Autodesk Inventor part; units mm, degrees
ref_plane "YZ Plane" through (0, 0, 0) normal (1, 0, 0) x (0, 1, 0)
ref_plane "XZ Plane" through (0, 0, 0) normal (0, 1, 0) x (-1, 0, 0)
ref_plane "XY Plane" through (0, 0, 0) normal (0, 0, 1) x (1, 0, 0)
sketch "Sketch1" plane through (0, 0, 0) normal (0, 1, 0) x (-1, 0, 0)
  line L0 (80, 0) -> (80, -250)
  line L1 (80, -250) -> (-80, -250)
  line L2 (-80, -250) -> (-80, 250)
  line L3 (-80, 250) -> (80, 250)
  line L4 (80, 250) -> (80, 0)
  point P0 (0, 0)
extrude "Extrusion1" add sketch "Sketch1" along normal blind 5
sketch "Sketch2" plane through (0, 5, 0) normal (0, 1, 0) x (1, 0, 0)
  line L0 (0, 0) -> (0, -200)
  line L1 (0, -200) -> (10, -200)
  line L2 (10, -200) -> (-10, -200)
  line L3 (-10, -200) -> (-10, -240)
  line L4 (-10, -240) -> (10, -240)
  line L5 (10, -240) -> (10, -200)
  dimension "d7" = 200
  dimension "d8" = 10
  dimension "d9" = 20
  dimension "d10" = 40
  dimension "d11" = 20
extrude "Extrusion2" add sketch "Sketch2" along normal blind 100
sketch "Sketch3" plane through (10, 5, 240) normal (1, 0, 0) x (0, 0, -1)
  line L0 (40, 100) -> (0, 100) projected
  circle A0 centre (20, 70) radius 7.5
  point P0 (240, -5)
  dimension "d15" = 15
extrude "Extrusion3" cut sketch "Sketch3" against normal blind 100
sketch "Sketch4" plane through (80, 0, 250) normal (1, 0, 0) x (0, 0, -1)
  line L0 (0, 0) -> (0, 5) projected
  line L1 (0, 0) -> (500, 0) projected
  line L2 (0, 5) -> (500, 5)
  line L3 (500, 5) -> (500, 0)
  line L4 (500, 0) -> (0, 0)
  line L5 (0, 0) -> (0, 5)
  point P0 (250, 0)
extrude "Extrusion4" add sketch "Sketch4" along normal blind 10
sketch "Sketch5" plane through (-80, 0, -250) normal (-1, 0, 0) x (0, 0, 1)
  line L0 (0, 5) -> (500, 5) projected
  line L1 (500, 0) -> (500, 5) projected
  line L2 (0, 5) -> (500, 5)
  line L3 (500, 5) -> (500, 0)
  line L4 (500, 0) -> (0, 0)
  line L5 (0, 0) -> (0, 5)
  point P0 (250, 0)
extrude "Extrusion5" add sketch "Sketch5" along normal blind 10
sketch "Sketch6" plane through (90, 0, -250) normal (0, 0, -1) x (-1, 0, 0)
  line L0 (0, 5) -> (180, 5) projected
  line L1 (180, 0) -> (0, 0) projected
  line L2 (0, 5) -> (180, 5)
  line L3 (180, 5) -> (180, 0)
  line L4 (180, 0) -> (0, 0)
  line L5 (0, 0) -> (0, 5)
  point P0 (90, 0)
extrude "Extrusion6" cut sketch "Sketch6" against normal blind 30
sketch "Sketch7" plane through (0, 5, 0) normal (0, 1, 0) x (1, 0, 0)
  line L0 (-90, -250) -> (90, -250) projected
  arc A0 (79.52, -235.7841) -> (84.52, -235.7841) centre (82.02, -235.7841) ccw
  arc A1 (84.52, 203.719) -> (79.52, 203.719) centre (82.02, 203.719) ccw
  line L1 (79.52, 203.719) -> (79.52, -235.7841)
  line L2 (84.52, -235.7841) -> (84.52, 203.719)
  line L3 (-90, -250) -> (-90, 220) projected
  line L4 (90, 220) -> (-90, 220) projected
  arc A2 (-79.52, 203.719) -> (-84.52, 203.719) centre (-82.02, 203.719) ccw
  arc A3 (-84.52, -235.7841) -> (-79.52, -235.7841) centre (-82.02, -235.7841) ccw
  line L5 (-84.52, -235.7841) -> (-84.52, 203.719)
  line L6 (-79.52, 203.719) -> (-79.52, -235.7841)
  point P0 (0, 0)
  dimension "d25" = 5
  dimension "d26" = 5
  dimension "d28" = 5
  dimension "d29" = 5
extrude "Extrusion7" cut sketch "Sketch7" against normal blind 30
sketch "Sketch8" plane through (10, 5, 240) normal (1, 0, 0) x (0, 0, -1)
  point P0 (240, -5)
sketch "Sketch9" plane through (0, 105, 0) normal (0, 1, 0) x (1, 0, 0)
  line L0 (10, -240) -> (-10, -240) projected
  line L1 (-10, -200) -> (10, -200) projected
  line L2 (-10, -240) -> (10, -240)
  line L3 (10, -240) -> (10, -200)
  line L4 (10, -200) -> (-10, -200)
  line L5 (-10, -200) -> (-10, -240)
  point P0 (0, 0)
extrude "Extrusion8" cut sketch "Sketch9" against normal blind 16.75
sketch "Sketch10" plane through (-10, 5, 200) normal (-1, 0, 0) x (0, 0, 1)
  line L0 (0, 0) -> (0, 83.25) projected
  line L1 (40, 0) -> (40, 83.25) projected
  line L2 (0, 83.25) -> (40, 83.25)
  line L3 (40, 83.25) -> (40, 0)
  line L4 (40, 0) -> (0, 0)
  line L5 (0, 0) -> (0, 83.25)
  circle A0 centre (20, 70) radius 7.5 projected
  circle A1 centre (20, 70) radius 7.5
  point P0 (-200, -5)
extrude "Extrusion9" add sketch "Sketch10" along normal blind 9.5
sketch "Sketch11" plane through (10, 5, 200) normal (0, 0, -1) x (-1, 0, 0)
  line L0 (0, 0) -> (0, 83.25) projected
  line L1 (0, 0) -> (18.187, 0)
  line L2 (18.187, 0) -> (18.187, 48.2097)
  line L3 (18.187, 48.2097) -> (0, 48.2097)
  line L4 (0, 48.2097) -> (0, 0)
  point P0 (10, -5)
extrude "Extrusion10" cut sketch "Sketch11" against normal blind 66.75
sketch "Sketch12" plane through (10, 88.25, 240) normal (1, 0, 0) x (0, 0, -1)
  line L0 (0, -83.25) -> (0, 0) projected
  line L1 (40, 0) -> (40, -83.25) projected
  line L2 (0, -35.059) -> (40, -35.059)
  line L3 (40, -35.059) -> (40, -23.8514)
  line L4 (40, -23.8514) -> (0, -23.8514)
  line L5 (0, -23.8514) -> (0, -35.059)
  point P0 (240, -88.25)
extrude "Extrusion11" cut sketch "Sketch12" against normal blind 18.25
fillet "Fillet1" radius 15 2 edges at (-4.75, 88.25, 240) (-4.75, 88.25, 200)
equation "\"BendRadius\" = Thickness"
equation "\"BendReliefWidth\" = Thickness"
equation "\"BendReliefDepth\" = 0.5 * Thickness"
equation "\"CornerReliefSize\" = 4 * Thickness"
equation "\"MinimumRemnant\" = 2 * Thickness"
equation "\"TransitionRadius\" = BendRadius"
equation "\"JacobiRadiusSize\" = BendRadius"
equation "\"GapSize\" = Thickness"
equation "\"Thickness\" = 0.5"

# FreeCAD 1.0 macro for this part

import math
import FreeCAD as App
import Part
import Sketcher
from FreeCAD import Vector
Q = App.Units.Quantity


def edges_at(feature, points):
    """Names of the edges that pass closest to the given points."""
    edges = feature.Shape.Edges
    near = lambda p: min(range(len(edges)), key=lambda i: edges[i].distToShape(Part.Vertex(*p))[0])
    return sorted({f"Edge{near(p) + 1}" for p in points})


def add_polygon(sketch, points):
    """Adds a closed chain of lines whose ends are joined by coincident constraints."""
    first, n = sketch.GeometryCount, len(points)
    for a, b in zip(points, points[1:] + points[:1]):
        sketch.addGeometry(Part.LineSegment(App.Vector(*a, 0), App.Vector(*b, 0)), False)
    for i in range(n):
        sketch.addConstraint(Sketcher.Constraint("Coincident", first + i, 2, first + (i + 1) % n, 1))

doc = App.newDocument("Part")
body = doc.addObject("PartDesign::Body", "Body")

# Sketch on XZ plane
sketch1 = doc.addObject("Sketcher::SketchObject", "Sketch")
body.addObject(sketch1)
sketch1.AttachmentSupport = (doc.XZ_Plane, [""])
sketch1.MapMode = "FlatFace"
add_polygon(sketch1, [(-80, -250), (-80, 250), (80, 250), (80, -250)])  # lines 0-3
sketch1.addConstraint(Sketcher.Constraint("Vertical", 0))
sketch1.addConstraint(Sketcher.Constraint("Horizontal", 1))
sketch1.addConstraint(Sketcher.Constraint("Vertical", 2))
sketch1.addConstraint(Sketcher.Constraint("Horizontal", 3))
sketch1.addConstraint(Sketcher.Constraint("Symmetric", 0, 2, 2, 2, -1, 1))
sketch1.addConstraint(Sketcher.Constraint("DistanceX", 1, 1, 1, 2, Q("160 mm")))
sketch1.addConstraint(Sketcher.Constraint("DistanceY", 0, 1, 0, 2, Q("500 mm")))
pad1 = doc.addObject("PartDesign::Pad", "Pad")
body.addObject(pad1)
pad1.Profile = sketch1
pad1.Length = 5
pad1.Reversed = True

# Sketch on XZ plane
sketch2 = doc.addObject("Sketcher::SketchObject", "Sketch001")
body.addObject(sketch2)
sketch2.AttachmentSupport = (doc.XZ_Plane, [""])
sketch2.MapMode = "FlatFace"
sketch2.AttachmentOffset = App.Placement(Vector(0, 0, -5), App.Rotation())
add_polygon(sketch2, [(10, 200), (-10, 200), (-10, 240), (10, 240)])  # lines 0-3
sketch2.addConstraint(Sketcher.Constraint("Horizontal", 0))
sketch2.addConstraint(Sketcher.Constraint("Vertical", 1))
sketch2.addConstraint(Sketcher.Constraint("Horizontal", 2))
sketch2.addConstraint(Sketcher.Constraint("Vertical", 3))
sketch2.addConstraint(Sketcher.Constraint("DistanceX", 0, 2, 0, 1, Q("20 mm")))
sketch2.addConstraint(Sketcher.Constraint("DistanceY", 1, 1, 1, 2, Q("40 mm")))
sketch2.addConstraint(Sketcher.Constraint("DistanceX", 0, 2, -1, 1, Q("10 mm")))
sketch2.addConstraint(Sketcher.Constraint("DistanceY", -1, 1, 0, 2, Q("200 mm")))
pad2 = doc.addObject("PartDesign::Pad", "Pad001")
body.addObject(pad2)
pad2.Profile = sketch2
pad2.Length = 100
pad2.Reversed = True

# Sketch on YZ plane
sketch3 = doc.addObject("Sketcher::SketchObject", "Sketch002")
body.addObject(sketch3)
sketch3.AttachmentSupport = (doc.YZ_Plane, [""])
sketch3.MapMode = "FlatFace"
sketch3.AttachmentOffset = App.Placement(Vector(0, 0, 10), App.Rotation())
sketch3.addGeometry(Part.Circle(Vector(75, 220, 0), Vector(0, 0, 1), 8), False)
sketch3.addConstraint(Sketcher.Constraint("Diameter", 0, Q("15 mm")))
sketch3.addConstraint(Sketcher.Constraint("DistanceX", -1, 1, 0, 3, Q("75 mm")))
sketch3.addConstraint(Sketcher.Constraint("DistanceY", -1, 1, 0, 3, Q("220 mm")))
pocket1 = doc.addObject("PartDesign::Pocket", "Pocket")
body.addObject(pocket1)
pocket1.Profile = sketch3
pocket1.Length = 100

# Sketch on YZ plane
sketch4 = doc.addObject("Sketcher::SketchObject", "Sketch003")
body.addObject(sketch4)
sketch4.AttachmentSupport = (doc.YZ_Plane, [""])
sketch4.MapMode = "FlatFace"
sketch4.AttachmentOffset = App.Placement(Vector(0, 0, 80), App.Rotation())
add_polygon(sketch4, [(5, 250), (0, 250), (0, -250), (5, -250)])  # lines 0-3
sketch4.addConstraint(Sketcher.Constraint("Horizontal", 0))
sketch4.addConstraint(Sketcher.Constraint("Vertical", 1))
sketch4.addConstraint(Sketcher.Constraint("Horizontal", 2))
sketch4.addConstraint(Sketcher.Constraint("Vertical", 3))
sketch4.addConstraint(Sketcher.Constraint("Symmetric", 0, 2, 1, 2, -1, 1))
sketch4.addConstraint(Sketcher.Constraint("DistanceX", 0, 2, 0, 1, Q("5 mm")))
sketch4.addConstraint(Sketcher.Constraint("DistanceY", 1, 2, 1, 1, Q("500 mm")))
pad3 = doc.addObject("PartDesign::Pad", "Pad002")
body.addObject(pad3)
pad3.Profile = sketch4
pad3.Length = 10

# Sketch on YZ plane
sketch5 = doc.addObject("Sketcher::SketchObject", "Sketch004")
body.addObject(sketch5)
sketch5.AttachmentSupport = (doc.YZ_Plane, [""])
sketch5.MapMode = "FlatFace"
sketch5.AttachmentOffset = App.Placement(Vector(0, 0, -80), App.Rotation())
add_polygon(sketch5, [(5, 250), (5, -250), (0, -250), (0, 250)])  # lines 0-3
sketch5.addConstraint(Sketcher.Constraint("Vertical", 0))
sketch5.addConstraint(Sketcher.Constraint("Horizontal", 1))
sketch5.addConstraint(Sketcher.Constraint("Vertical", 2))
sketch5.addConstraint(Sketcher.Constraint("Horizontal", 3))
sketch5.addConstraint(Sketcher.Constraint("Symmetric", 1, 2, 2, 2, -1, 1))
sketch5.addConstraint(Sketcher.Constraint("DistanceX", 1, 2, 1, 1, Q("5 mm")))
sketch5.addConstraint(Sketcher.Constraint("DistanceY", 0, 2, 0, 1, Q("500 mm")))
pad4 = doc.addObject("PartDesign::Pad", "Pad003")
body.addObject(pad4)
pad4.Profile = sketch5
pad4.Length = 10
pad4.Reversed = True

# Sketch on XY plane
sketch6 = doc.addObject("Sketcher::SketchObject", "Sketch005")
body.addObject(sketch6)
sketch6.AttachmentSupport = (doc.XY_Plane, [""])
sketch6.MapMode = "FlatFace"
sketch6.AttachmentOffset = App.Placement(Vector(0, 0, -250), App.Rotation())
add_polygon(sketch6, [(-90, 5), (90, 5), (90, 0), (-90, 0)])  # lines 0-3
sketch6.addConstraint(Sketcher.Constraint("Horizontal", 0))
sketch6.addConstraint(Sketcher.Constraint("Vertical", 1))
sketch6.addConstraint(Sketcher.Constraint("Horizontal", 2))
sketch6.addConstraint(Sketcher.Constraint("Vertical", 3))
sketch6.addConstraint(Sketcher.Constraint("Symmetric", 1, 2, 2, 2, -1, 1))
sketch6.addConstraint(Sketcher.Constraint("DistanceX", 0, 1, 0, 2, Q("180 mm")))
sketch6.addConstraint(Sketcher.Constraint("DistanceY", 1, 2, 1, 1, Q("5 mm")))
pocket2 = doc.addObject("PartDesign::Pocket", "Pocket001")
body.addObject(pocket2)
pocket2.Profile = sketch6
pocket2.Length = 30
pocket2.Reversed = True

# Sketch on XZ plane
sketch7 = doc.addObject("Sketcher::SketchObject", "Sketch006")
body.addObject(sketch7)
sketch7.AttachmentSupport = (doc.XZ_Plane, [""])
sketch7.MapMode = "FlatFace"
sketch7.AttachmentOffset = App.Placement(Vector(0, 0, -5), App.Rotation())
sketch7.addGeometry(Part.LineSegment(Vector(79.5, -203.7, 0), Vector(79.5, 235.8, 0)), False)
sketch7.addGeometry(Part.ArcOfCircle(Part.Circle(Vector(82, 235.8, 0), Vector(0, 0, 1), 2.5), math.radians(0), math.radians(180)), False)
sketch7.addGeometry(Part.LineSegment(Vector(84.5, 235.8, 0), Vector(84.5, -203.7, 0)), False)
sketch7.addGeometry(Part.ArcOfCircle(Part.Circle(Vector(82, -203.7, 0), Vector(0, 0, 1), 2.5), math.radians(180), math.radians(360)), False)
sketch7.addGeometry(Part.LineSegment(Vector(-79.5, 235.8, 0), Vector(-79.5, -203.7, 0)), False)
sketch7.addGeometry(Part.ArcOfCircle(Part.Circle(Vector(-82, -203.7, 0), Vector(0, 0, 1), 2.5), math.radians(180), math.radians(360)), False)
sketch7.addGeometry(Part.LineSegment(Vector(-84.5, -203.7, 0), Vector(-84.5, 235.8, 0)), False)
sketch7.addGeometry(Part.ArcOfCircle(Part.Circle(Vector(-82, 235.8, 0), Vector(0, 0, 1), 2.5), math.radians(0), math.radians(180)), False)
sketch7.addConstraint(Sketcher.Constraint("Tangent", 0, 2, 1, 2))
sketch7.addConstraint(Sketcher.Constraint("Tangent", 1, 1, 2, 1))
sketch7.addConstraint(Sketcher.Constraint("Tangent", 2, 2, 3, 2))
sketch7.addConstraint(Sketcher.Constraint("Tangent", 3, 1, 0, 1))
sketch7.addConstraint(Sketcher.Constraint("Tangent", 4, 2, 5, 2))
sketch7.addConstraint(Sketcher.Constraint("Tangent", 5, 1, 6, 1))
sketch7.addConstraint(Sketcher.Constraint("Tangent", 6, 2, 7, 2))
sketch7.addConstraint(Sketcher.Constraint("Tangent", 7, 1, 4, 1))
sketch7.addConstraint(Sketcher.Constraint("Vertical", 0))
sketch7.addConstraint(Sketcher.Constraint("Vertical", 2))
sketch7.addConstraint(Sketcher.Constraint("Vertical", 4))
sketch7.addConstraint(Sketcher.Constraint("Vertical", 6))
sketch7.addConstraint(Sketcher.Constraint("Equal", 3, 5))
sketch7.addConstraint(Sketcher.Constraint("Symmetric", 3, 3, 5, 3, -2))
sketch7.addConstraint(Sketcher.Constraint("Horizontal", 1, 3, 7, 3))
sketch7.addConstraint(Sketcher.Constraint("Radius", 1, Q("2.5 mm")))
sketch7.addConstraint(Sketcher.Constraint("DistanceY", 0, 1, 0, 2, Q("439.503 mm")))
sketch7.addConstraint(Sketcher.Constraint("DistanceX", -1, 1, 1, 3, Q("82.02 mm")))
sketch7.addConstraint(Sketcher.Constraint("DistanceY", -1, 1, 1, 3, Q("235.784 mm")))
pocket3 = doc.addObject("PartDesign::Pocket", "Pocket002")
body.addObject(pocket3)
pocket3.Profile = sketch7
pocket3.Length = 30
pocket3.Reversed = True

# Sketch on XZ plane
sketch8 = doc.addObject("Sketcher::SketchObject", "Sketch007")
body.addObject(sketch8)
sketch8.AttachmentSupport = (doc.XZ_Plane, [""])
sketch8.MapMode = "FlatFace"
sketch8.AttachmentOffset = App.Placement(Vector(0, 0, -105), App.Rotation())
add_polygon(sketch8, [(-10, 240), (10, 240), (10, 200), (-10, 200)])  # lines 0-3
sketch8.addConstraint(Sketcher.Constraint("Horizontal", 0))
sketch8.addConstraint(Sketcher.Constraint("Vertical", 1))
sketch8.addConstraint(Sketcher.Constraint("Horizontal", 2))
sketch8.addConstraint(Sketcher.Constraint("Vertical", 3))
sketch8.addConstraint(Sketcher.Constraint("DistanceX", 0, 1, 0, 2, Q("20 mm")))
sketch8.addConstraint(Sketcher.Constraint("DistanceY", 1, 2, 1, 1, Q("40 mm")))
sketch8.addConstraint(Sketcher.Constraint("DistanceX", -1, 1, 0, 2, Q("10 mm")))
sketch8.addConstraint(Sketcher.Constraint("DistanceY", -1, 1, 0, 2, Q("240 mm")))
pocket4 = doc.addObject("PartDesign::Pocket", "Pocket003")
body.addObject(pocket4)
pocket4.Profile = sketch8
pocket4.Length = 16.75
pocket4.Reversed = True

# Sketch on YZ plane
sketch9 = doc.addObject("Sketcher::SketchObject", "Sketch008")
body.addObject(sketch9)
sketch9.AttachmentSupport = (doc.YZ_Plane, [""])
sketch9.MapMode = "FlatFace"
sketch9.AttachmentOffset = App.Placement(Vector(0, 0, -10), App.Rotation())
add_polygon(sketch9, [(88, 200), (5, 200), (5, 240), (88, 240)])  # lines 0-3
sketch9.addGeometry(Part.Circle(Vector(75, 220, 0), Vector(0, 0, 1), 8), False)  # 4
sketch9.addConstraint(Sketcher.Constraint("Horizontal", 0))
sketch9.addConstraint(Sketcher.Constraint("Vertical", 1))
sketch9.addConstraint(Sketcher.Constraint("Horizontal", 2))
sketch9.addConstraint(Sketcher.Constraint("Vertical", 3))
sketch9.addConstraint(Sketcher.Constraint("Diameter", 4, Q("15 mm")))
sketch9.addConstraint(Sketcher.Constraint("DistanceY", 1, 1, 1, 2, Q("40 mm")))
sketch9.addConstraint(Sketcher.Constraint("DistanceX", -1, 1, 4, 3, Q("75 mm")))
sketch9.addConstraint(Sketcher.Constraint("DistanceY", -1, 1, 4, 3, Q("220 mm")))
sketch9.addConstraint(Sketcher.Constraint("DistanceX", -1, 1, 0, 2, Q("5 mm")))
sketch9.addConstraint(Sketcher.Constraint("DistanceY", -1, 1, 0, 2, Q("200 mm")))
sketch9.addConstraint(Sketcher.Constraint("DistanceX", 0, 2, 0, 1, Q("83.25 mm")))
pad5 = doc.addObject("PartDesign::Pad", "Pad004")
body.addObject(pad5)
pad5.Profile = sketch9
pad5.Length = 9.5
pad5.Reversed = True

# Sketch on XY plane
sketch10 = doc.addObject("Sketcher::SketchObject", "Sketch009")
body.addObject(sketch10)
sketch10.AttachmentSupport = (doc.XY_Plane, [""])
sketch10.MapMode = "FlatFace"
sketch10.AttachmentOffset = App.Placement(Vector(0, 0, 200), App.Rotation())
add_polygon(sketch10, [(10, 53), (10, 5), (-8, 5), (-8, 53)])  # lines 0-3
sketch10.addConstraint(Sketcher.Constraint("Vertical", 0))
sketch10.addConstraint(Sketcher.Constraint("Horizontal", 1))
sketch10.addConstraint(Sketcher.Constraint("Vertical", 2))
sketch10.addConstraint(Sketcher.Constraint("Horizontal", 3))
sketch10.addConstraint(Sketcher.Constraint("DistanceX", -1, 1, 0, 2, Q("10 mm")))
sketch10.addConstraint(Sketcher.Constraint("DistanceY", -1, 1, 0, 2, Q("5 mm")))
sketch10.addConstraint(Sketcher.Constraint("DistanceX", 1, 2, 1, 1, Q("18.187 mm")))
sketch10.addConstraint(Sketcher.Constraint("DistanceY", 0, 2, 0, 1, Q("48.2097 mm")))
pocket5 = doc.addObject("PartDesign::Pocket", "Pocket004")
body.addObject(pocket5)
pocket5.Profile = sketch10
pocket5.Length = 66.75
pocket5.Reversed = True

# Sketch on YZ plane
sketch11 = doc.addObject("Sketcher::SketchObject", "Sketch010")
body.addObject(sketch11)
sketch11.AttachmentSupport = (doc.YZ_Plane, [""])
sketch11.MapMode = "FlatFace"
sketch11.AttachmentOffset = App.Placement(Vector(0, 0, 10), App.Rotation())
add_polygon(sketch11, [(64, 240), (53, 240), (53, 200), (64, 200)])  # lines 0-3
sketch11.addConstraint(Sketcher.Constraint("Horizontal", 0))
sketch11.addConstraint(Sketcher.Constraint("Vertical", 1))
sketch11.addConstraint(Sketcher.Constraint("Horizontal", 2))
sketch11.addConstraint(Sketcher.Constraint("Vertical", 3))
sketch11.addConstraint(Sketcher.Constraint("DistanceY", 1, 2, 1, 1, Q("40 mm")))
sketch11.addConstraint(Sketcher.Constraint("DistanceY", -1, 1, 0, 2, Q("240 mm")))
sketch11.addConstraint(Sketcher.Constraint("DistanceX", 0, 2, 0, 1, Q("11.2076 mm")))
sketch11.addConstraint(Sketcher.Constraint("DistanceX", -1, 1, 0, 2, Q("53.191 mm")))
pocket6 = doc.addObject("PartDesign::Pocket", "Pocket005")
body.addObject(pocket6)
pocket6.Profile = sketch11
pocket6.Length = 18.25
doc.recompute()

fillet = doc.addObject("PartDesign::Fillet", "Fillet")
body.addObject(fillet)
fillet.Base = (pocket6, edges_at(pocket6, [(-4.75, 88.25, 240), (-4.75, 88.25, 200)]))
fillet.Radius = 15

doc.recompute()
